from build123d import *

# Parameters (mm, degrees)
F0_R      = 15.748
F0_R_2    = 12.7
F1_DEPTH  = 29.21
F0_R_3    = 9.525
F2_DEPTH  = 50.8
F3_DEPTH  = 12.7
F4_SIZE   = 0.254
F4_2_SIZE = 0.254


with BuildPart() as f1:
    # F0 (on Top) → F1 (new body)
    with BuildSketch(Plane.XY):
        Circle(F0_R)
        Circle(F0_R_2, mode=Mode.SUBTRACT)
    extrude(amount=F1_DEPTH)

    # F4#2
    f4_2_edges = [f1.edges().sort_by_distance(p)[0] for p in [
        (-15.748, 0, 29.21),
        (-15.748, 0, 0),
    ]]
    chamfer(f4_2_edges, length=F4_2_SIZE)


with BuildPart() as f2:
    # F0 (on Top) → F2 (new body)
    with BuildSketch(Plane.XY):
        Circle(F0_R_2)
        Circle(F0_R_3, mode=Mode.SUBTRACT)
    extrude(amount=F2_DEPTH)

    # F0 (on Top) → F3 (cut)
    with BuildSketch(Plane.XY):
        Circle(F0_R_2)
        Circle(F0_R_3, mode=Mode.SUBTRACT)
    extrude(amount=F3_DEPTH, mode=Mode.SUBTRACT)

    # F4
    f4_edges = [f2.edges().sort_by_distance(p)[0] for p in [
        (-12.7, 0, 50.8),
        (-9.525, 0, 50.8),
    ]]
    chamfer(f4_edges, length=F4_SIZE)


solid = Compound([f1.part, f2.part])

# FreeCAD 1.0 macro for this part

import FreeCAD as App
import Part
import Sketcher

V = App.Vector
Q = App.Units.Quantity


def edges_at(feature, points):
    """Names of the edges that pass closest to the given points."""
    edges = feature.Shape.Edges
    near = lambda p: min(range(len(edges)), key=lambda i: edges[i].distToShape(Part.Vertex(*p))[0])
    return sorted({f"Edge{near(p) + 1}" for p in points})

doc = App.newDocument("Part")
body = doc.addObject("PartDesign::Body", "Body")

# Sketch on XY plane
sketch1 = body.newObject("Sketcher::SketchObject", "Sketch")
sketch1.AttachmentSupport = (doc.getObject("XY_Plane"), [""])
sketch1.MapMode = "FlatFace"
sketch1.addGeometry([
    Part.Circle(V(0, 0, 0), V(0, 0, 1), 15.748),
    Part.Circle(V(0, 0, 0), V(0, 0, 1), 12.7),
], False)
sketch1.addConstraint([
    Sketcher.Constraint("Coincident", 0, 3, -1, 1),
    Sketcher.Constraint("Coincident", 1, 3, -1, 1),
    Sketcher.Constraint("Diameter", 1, Q("1 in")),
    Sketcher.Constraint("Diameter", 0, Q("1.24 in")),
])
pad1 = body.newObject("PartDesign::Pad", "Pad")
pad1.Profile = sketch1
pad1.Length = Q("1.15 in")
doc.recompute()

chamfer = body.newObject("PartDesign::Chamfer", "Chamfer")
chamfer.Base = (pad1, edges_at(pad1, [(-15.748, 0, 29.21), (-15.748, 0, 0)]))
chamfer.Size = Q("0.01 in")
body2 = doc.addObject("PartDesign::Body", "Body001")

# Sketch on XY plane
sketch2 = body2.newObject("Sketcher::SketchObject", "Sketch001")
sketch2.AttachmentSupport = (doc.getObject("XY_Plane001"), [""])
sketch2.MapMode = "FlatFace"
sketch2.addGeometry([
    Part.Circle(V(0, 0, 0), V(0, 0, 1), 12.7),
    Part.Circle(V(0, 0, 0), V(0, 0, 1), 9.525),
], False)
sketch2.addConstraint([
    Sketcher.Constraint("Coincident", 0, 3, -1, 1),
    Sketcher.Constraint("Coincident", 1, 3, -1, 1),
    Sketcher.Constraint("Diameter", 0, Q("1 in")),
    Sketcher.Constraint("Diameter", 1, Q("0.75 in")),
])
pad2 = body2.newObject("PartDesign::Pad", "Pad001")
pad2.Profile = sketch2
pad2.Length = Q("2 in")

# Sketch on XY plane
sketch3 = body2.newObject("Sketcher::SketchObject", "Sketch002")
sketch3.AttachmentSupport = (doc.getObject("XY_Plane001"), [""])
sketch3.MapMode = "FlatFace"
sketch3.addGeometry([
    Part.Circle(V(0, 0, 0), V(0, 0, 1), 12.7),
    Part.Circle(V(0, 0, 0), V(0, 0, 1), 9.525),
], False)
sketch3.addConstraint([
    Sketcher.Constraint("Coincident", 0, 3, -1, 1),
    Sketcher.Constraint("Coincident", 1, 3, -1, 1),
    Sketcher.Constraint("Diameter", 0, Q("1 in")),
    Sketcher.Constraint("Diameter", 1, Q("0.75 in")),
])
pocket1 = body2.newObject("PartDesign::Pocket", "Pocket")
pocket1.Profile = sketch3
pocket1.Length = Q("0.5 in")
pocket1.Reversed = True
doc.recompute()

chamfer2 = body2.newObject("PartDesign::Chamfer", "Chamfer001")
chamfer2.Base = (pocket1, edges_at(pocket1, [(-12.7, 0, 50.8), (-9.525, 0, 50.8)]))
chamfer2.Size = Q("0.01 in")

doc.recompute()
